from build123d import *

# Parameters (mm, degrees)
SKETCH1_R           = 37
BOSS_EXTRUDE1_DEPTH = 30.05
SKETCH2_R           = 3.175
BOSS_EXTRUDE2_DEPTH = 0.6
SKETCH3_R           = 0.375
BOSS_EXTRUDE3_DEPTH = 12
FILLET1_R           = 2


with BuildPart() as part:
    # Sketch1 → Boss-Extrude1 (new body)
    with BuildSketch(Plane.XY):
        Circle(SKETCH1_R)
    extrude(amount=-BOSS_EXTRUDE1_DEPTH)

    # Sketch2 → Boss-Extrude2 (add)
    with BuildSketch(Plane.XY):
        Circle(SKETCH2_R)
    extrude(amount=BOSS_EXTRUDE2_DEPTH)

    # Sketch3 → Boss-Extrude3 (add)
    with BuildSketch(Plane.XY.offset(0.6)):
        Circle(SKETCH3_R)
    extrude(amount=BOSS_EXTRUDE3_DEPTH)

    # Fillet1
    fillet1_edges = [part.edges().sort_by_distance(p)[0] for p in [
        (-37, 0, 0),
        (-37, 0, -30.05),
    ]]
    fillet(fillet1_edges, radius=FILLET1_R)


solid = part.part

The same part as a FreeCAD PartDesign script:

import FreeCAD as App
import Part
import Sketcher

V = App.Vector
Q = App.Units.Quantity


def edges_at(feature, points):
    """Names of the edges that pass closest to the given points."""
    edges = feature.Shape.Edges
    near = lambda p: min(range(len(edges)), key=lambda i: edges[i].distToShape(Part.Vertex(*p))[0])
    return sorted({f"Edge{near(p) + 1}" for p in points})

doc = App.newDocument("Part")
params = doc.addObject("Spreadsheet::Sheet", "Params")
for row, (alias, value) in enumerate([
    ("sketch1_diameter", "74 mm"),
    ("pad1_length", "30.05 mm"),
    ("sketch2_diameter", "6.35 mm"),
    ("pad2_length", "0.6 mm"),
    ("sketch3_diameter", "0.75 mm"),
    ("pad3_length", "12 mm"),
    ("fillet_radius", "2 mm"),
], start=1):
    params.set(f"A{row}", alias)
    params.set(f"B{row}", "=" + value)
    params.setAlias(f"B{row}", alias)

body = doc.addObject("PartDesign::Body", "Body")

# Sketch on XY plane
sketch1 = body.newObject("Sketcher::SketchObject", "Sketch")
sketch1.AttachmentSupport = (doc.getObject("XY_Plane"), [""])
sketch1.MapMode = "FlatFace"
sketch1.addGeometry(Part.Circle(V(0, 0, 0), V(0, 0, 1), 37), False)
sketch1.addConstraint([
    Sketcher.Constraint("Coincident", 0, 3, -1, 1),
    Sketcher.Constraint("Diameter", 0, Q("74 mm")),
])
sketch1.setExpression("Constraints[1]", "Params.sketch1_diameter")
pad1 = body.newObject("PartDesign::Pad", "Pad")
pad1.Profile = sketch1
pad1.setExpression("Length", "Params.pad1_length")
pad1.Reversed = True

# Sketch on XY plane
sketch2 = body.newObject("Sketcher::SketchObject", "Sketch001")
sketch2.AttachmentSupport = (doc.getObject("XY_Plane"), [""])
sketch2.MapMode = "FlatFace"
sketch2.addGeometry(Part.Circle(V(0, 0, 0), V(0, 0, 1), 3.2), False)
sketch2.addConstraint([
    Sketcher.Constraint("Coincident", 0, 3, -1, 1),
    Sketcher.Constraint("Diameter", 0, Q("6.35 mm")),
])
sketch2.setExpression("Constraints[1]", "Params.sketch2_diameter")
pad2 = body.newObject("PartDesign::Pad", "Pad001")
pad2.Profile = sketch2
pad2.setExpression("Length", "Params.pad2_length")

# Sketch on XY plane
sketch3 = body.newObject("Sketcher::SketchObject", "Sketch002")
sketch3.AttachmentSupport = (doc.getObject("XY_Plane"), [""])
sketch3.MapMode = "FlatFace"
sketch3.AttachmentOffset = App.Placement(V(0, 0, 0.6), App.Rotation())
sketch3.addGeometry(Part.Circle(V(0, 0, 0), V(0, 0, 1), 0.38), False)
sketch3.addConstraint([
    Sketcher.Constraint("Coincident", 0, 3, -1, 1),
    Sketcher.Constraint("Diameter", 0, Q("0.75 mm")),
])
sketch3.setExpression("Constraints[1]", "Params.sketch3_diameter")
pad3 = body.newObject("PartDesign::Pad", "Pad002")
pad3.Profile = sketch3
pad3.setExpression("Length", "Params.pad3_length")
doc.recompute()

fillet = body.newObject("PartDesign::Fillet", "Fillet")
fillet.Base = (pad3, edges_at(pad3, [(-37, 0, 0), (-37, 0, -30.05)]))
fillet.setExpression("Radius", "Params.fillet_radius")

doc.recompute()
